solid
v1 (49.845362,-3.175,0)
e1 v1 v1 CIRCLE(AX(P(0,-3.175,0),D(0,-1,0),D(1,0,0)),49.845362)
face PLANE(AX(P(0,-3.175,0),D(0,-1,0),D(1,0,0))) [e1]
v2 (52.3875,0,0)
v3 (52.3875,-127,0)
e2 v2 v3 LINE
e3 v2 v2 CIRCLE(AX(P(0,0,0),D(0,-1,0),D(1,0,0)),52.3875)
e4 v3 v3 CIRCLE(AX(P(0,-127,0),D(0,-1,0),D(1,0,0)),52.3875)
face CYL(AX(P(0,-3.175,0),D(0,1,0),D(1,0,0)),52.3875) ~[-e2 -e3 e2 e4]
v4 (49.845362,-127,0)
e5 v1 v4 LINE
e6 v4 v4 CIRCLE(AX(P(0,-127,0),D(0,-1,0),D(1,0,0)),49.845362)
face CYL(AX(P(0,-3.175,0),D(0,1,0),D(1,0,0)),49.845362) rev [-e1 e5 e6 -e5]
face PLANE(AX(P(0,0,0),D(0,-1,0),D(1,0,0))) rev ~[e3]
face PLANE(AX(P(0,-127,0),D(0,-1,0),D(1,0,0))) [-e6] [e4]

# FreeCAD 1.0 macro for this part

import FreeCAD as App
import Part
import Sketcher

V = App.Vector
Q = App.Units.Quantity

doc = App.newDocument("Part")
params = doc.addObject("Spreadsheet::Sheet", "Params")
for row, (alias, value) in enumerate([
    ("sketch1_diameter", "4.125 in"),
    ("pad1_length", "0.125 in"),
    ("sketch2_diameter", "4.125 in"),
    ("pad2_length", "4.875 in"),
], start=1):
    params.set(f"A{row}", alias)
    params.set(f"B{row}", "=" + value)
    params.setAlias(f"B{row}", alias)

body = doc.addObject("PartDesign::Body", "Body")

# Sketch on XZ plane
sketch1 = body.newObject("Sketcher::SketchObject", "Sketch")
sketch1.AttachmentSupport = (doc.getObject("XZ_Plane"), [""])
sketch1.MapMode = "FlatFace"
sketch1.addGeometry(Part.Circle(V(0, 0, 0), V(0, 0, 1), 52), False)
sketch1.addConstraint([
    Sketcher.Constraint("Coincident", 0, 3, -1, 1),
    Sketcher.Constraint("Diameter", 0, Q("4.125 in")),
])
sketch1.setExpression("Constraints[1]", "Params.sketch1_diameter")
pad1 = body.newObject("PartDesign::Pad", "Pad")
pad1.Profile = sketch1
pad1.setExpression("Length", "Params.pad1_length")

# Sketch on XZ plane
sketch2 = body.newObject("Sketcher::SketchObject", "Sketch001")
sketch2.AttachmentSupport = (doc.getObject("XZ_Plane"), [""])
sketch2.MapMode = "FlatFace"
sketch2.AttachmentOffset = App.Placement(V(0, 0, 0.125 * 25.4), App.Rotation())
sketch2.addGeometry([
    Part.Circle(V(0, 0, 0), V(0, 0, 1), 52),
    Part.Circle(V(0, 0, 0), V(0, 0, 1), 50),
], False)
sketch2.addConstraint([
    Sketcher.Constraint("Coincident", 0, 3, -1, 1),
    Sketcher.Constraint("Coincident", 1, 3, -1, 1),
    Sketcher.Constraint("Diameter", 0, Q("4.125 in")),
    Sketcher.Constraint("Diameter", 1, 99.690724),
])
sketch2.setExpression("Constraints[2]", "Params.sketch2_diameter")
pad2 = body.newObject("PartDesign::Pad", "Pad001")
pad2.Profile = sketch2
pad2.setExpression("Length", "Params.pad2_length")

doc.recompute()
